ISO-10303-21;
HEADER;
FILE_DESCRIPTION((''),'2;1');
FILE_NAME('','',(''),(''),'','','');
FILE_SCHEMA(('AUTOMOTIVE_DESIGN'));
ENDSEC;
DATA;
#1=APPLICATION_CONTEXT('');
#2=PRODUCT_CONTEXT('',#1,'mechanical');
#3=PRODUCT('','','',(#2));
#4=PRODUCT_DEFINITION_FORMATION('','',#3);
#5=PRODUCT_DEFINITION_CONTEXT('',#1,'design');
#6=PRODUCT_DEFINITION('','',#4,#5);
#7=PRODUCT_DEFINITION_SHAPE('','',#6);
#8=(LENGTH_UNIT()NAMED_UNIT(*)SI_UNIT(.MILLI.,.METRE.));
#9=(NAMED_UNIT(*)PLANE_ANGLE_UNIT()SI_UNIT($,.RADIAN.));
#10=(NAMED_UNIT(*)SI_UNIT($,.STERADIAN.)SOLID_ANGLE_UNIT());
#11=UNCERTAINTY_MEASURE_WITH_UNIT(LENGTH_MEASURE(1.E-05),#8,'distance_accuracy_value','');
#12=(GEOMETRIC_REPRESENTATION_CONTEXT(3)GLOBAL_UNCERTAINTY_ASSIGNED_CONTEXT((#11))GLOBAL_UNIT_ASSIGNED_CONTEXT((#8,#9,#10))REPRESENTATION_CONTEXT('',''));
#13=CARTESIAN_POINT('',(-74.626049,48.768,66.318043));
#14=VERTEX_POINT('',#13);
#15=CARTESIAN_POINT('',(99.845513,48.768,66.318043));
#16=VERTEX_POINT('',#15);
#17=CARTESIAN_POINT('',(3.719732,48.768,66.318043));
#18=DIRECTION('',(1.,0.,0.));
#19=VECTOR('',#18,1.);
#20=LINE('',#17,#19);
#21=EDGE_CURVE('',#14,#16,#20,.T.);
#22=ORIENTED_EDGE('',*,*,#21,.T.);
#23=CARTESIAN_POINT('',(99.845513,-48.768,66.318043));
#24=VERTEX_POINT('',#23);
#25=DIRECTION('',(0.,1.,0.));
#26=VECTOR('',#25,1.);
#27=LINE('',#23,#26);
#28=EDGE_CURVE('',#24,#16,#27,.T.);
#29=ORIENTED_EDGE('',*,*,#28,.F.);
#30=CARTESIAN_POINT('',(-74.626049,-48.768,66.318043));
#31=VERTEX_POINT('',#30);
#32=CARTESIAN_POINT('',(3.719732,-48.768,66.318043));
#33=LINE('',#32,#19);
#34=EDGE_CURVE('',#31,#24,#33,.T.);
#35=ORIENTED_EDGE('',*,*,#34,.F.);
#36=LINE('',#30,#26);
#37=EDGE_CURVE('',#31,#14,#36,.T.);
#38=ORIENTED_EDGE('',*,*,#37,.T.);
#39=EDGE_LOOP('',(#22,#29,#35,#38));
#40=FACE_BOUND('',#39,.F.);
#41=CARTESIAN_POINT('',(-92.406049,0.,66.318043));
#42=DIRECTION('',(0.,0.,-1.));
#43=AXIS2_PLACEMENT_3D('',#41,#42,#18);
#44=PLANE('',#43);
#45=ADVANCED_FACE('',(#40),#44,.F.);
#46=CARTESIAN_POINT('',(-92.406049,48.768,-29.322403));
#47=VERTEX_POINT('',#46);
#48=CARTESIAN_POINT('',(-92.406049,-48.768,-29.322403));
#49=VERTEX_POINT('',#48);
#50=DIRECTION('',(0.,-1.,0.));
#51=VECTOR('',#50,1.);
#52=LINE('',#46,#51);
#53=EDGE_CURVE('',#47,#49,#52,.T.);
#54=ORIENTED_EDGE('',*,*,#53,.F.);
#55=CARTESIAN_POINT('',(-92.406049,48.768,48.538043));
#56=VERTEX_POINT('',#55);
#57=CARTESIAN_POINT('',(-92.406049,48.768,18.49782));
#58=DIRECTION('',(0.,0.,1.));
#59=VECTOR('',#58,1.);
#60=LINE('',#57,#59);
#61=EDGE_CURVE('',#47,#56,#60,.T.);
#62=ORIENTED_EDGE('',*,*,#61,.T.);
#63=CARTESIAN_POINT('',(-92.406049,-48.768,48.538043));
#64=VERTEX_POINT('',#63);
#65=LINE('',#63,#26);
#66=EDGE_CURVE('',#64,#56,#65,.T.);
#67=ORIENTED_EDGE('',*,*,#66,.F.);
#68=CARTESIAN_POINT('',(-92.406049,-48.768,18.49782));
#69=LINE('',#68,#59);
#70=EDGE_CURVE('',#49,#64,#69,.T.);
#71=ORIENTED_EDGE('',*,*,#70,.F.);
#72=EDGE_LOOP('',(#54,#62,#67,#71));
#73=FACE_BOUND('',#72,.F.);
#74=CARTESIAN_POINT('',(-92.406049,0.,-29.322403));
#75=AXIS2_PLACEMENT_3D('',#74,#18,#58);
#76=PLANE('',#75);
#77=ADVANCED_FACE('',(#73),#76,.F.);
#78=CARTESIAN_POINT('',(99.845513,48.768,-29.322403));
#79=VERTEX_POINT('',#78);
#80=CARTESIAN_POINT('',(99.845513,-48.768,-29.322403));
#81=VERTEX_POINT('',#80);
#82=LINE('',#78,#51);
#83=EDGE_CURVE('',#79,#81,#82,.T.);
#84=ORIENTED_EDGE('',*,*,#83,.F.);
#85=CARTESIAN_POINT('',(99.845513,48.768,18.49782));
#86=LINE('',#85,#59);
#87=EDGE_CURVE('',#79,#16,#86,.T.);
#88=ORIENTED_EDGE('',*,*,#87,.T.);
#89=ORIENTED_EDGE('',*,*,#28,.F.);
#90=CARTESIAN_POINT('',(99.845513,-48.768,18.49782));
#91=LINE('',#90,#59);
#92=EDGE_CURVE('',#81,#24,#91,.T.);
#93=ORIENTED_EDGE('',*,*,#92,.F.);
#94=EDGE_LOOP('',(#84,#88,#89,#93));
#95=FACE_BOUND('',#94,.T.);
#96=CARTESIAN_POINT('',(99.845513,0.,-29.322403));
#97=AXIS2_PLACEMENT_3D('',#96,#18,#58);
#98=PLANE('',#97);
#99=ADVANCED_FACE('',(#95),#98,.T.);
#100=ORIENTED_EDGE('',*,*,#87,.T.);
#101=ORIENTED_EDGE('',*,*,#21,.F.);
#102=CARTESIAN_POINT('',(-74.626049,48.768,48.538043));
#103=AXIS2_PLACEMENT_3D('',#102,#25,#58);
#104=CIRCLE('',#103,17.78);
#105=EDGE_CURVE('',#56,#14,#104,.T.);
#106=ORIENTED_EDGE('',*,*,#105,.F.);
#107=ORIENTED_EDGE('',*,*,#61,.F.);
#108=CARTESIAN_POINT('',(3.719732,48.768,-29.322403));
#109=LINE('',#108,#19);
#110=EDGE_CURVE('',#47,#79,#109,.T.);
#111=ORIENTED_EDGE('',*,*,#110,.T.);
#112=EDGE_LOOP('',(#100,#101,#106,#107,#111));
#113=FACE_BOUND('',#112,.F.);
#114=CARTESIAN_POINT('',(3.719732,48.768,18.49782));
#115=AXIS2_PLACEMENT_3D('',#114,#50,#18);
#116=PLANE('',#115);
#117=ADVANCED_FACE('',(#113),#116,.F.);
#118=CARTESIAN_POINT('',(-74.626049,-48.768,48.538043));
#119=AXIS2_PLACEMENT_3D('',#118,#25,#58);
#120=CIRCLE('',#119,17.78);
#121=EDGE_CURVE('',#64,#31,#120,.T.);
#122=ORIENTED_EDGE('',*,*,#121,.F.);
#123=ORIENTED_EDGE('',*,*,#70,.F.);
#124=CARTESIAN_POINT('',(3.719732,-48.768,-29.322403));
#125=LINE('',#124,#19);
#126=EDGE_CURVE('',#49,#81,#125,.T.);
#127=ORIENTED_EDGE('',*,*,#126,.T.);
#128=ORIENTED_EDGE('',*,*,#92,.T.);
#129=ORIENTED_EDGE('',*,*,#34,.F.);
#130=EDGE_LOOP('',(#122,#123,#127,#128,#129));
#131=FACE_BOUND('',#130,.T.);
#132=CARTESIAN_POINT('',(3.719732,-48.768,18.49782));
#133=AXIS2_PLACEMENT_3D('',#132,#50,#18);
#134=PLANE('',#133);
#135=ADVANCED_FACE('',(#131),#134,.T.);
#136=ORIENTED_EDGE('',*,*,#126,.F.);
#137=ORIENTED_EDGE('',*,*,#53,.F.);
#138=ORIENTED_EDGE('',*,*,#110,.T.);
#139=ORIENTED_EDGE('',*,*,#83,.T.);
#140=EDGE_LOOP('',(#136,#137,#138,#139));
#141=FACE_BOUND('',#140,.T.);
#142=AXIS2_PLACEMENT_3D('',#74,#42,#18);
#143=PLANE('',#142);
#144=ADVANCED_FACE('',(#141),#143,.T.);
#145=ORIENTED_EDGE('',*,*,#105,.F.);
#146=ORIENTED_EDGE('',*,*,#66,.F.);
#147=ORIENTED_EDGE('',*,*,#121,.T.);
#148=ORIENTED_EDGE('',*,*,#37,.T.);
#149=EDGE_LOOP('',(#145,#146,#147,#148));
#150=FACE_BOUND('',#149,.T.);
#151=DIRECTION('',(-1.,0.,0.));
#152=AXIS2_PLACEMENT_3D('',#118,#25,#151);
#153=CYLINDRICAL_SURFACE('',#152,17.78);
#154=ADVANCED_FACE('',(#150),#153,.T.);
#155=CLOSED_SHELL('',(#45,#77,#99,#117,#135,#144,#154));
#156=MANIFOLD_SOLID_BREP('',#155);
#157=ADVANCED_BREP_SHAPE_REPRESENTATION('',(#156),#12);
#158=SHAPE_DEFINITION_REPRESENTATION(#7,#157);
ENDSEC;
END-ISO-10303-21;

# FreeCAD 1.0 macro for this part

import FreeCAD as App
import Part
import Sketcher
Q = App.Units.Quantity


def edges_at(feature, points):
    """Names of the edges that pass closest to the given points."""
    edges = feature.Shape.Edges
    near = lambda p: min(range(len(edges)), key=lambda i: edges[i].distToShape(Part.Vertex(*p))[0])
    return sorted({f"Edge{near(p) + 1}" for p in points})

doc = App.newDocument("Part")
body = doc.addObject("PartDesign::Body", "Body")

# Sketch on XZ plane
sketch1 = body.newObject("Sketcher::SketchObject", "Sketch")
sketch1.AttachmentSupport = (doc.getObject("XZ_Plane"), [""])
sketch1.MapMode = "FlatFace"
sketch1.addGeometry(Part.LineSegment(App.Vector(-92, 66, 0), App.Vector(-92, -29, 0)), False)
sketch1.addGeometry(Part.LineSegment(App.Vector(-92, -29, 0), App.Vector(100, -29, 0)), False)
sketch1.addGeometry(Part.LineSegment(App.Vector(100, -29, 0), App.Vector(100, 66, 0)), False)
sketch1.addGeometry(Part.LineSegment(App.Vector(100, 66, 0), App.Vector(-92, 66, 0)), False)
sketch1.addConstraint(Sketcher.Constraint("Coincident", 0, 2, 1, 1))
sketch1.addConstraint(Sketcher.Constraint("Coincident", 1, 2, 2, 1))
sketch1.addConstraint(Sketcher.Constraint("Coincident", 2, 2, 3, 1))
sketch1.addConstraint(Sketcher.Constraint("Coincident", 3, 2, 0, 1))
sketch1.addConstraint(Sketcher.Constraint("Vertical", 0))
sketch1.addConstraint(Sketcher.Constraint("Horizontal", 1))
sketch1.addConstraint(Sketcher.Constraint("Vertical", 2))
sketch1.addConstraint(Sketcher.Constraint("Horizontal", 3))
sketch1.addConstraint(Sketcher.Constraint("DistanceX", 1, 1, 1, 2, Q("192.251563 mm")))
sketch1.addConstraint(Sketcher.Constraint("DistanceY", 0, 2, 0, 1, Q("95.640446 mm")))
sketch1.addConstraint(Sketcher.Constraint("DistanceX", 0, 2, -1, 1, Q("92.406049 mm")))
sketch1.addConstraint(Sketcher.Constraint("DistanceY", 0, 2, -1, 1, Q("29.322403 mm")))
pad1 = body.newObject("PartDesign::Pad", "Pad")
pad1.Profile = sketch1
pad1.Length = Q("3.84 in")
pad1.Midplane = True
doc.recompute()

fillet = body.newObject("PartDesign::Fillet", "Fillet")
fillet.Base = (pad1, edges_at(pad1, [(-92.406, 0, 66.318)]))
fillet.Radius = Q("0.7 in")

doc.recompute()
